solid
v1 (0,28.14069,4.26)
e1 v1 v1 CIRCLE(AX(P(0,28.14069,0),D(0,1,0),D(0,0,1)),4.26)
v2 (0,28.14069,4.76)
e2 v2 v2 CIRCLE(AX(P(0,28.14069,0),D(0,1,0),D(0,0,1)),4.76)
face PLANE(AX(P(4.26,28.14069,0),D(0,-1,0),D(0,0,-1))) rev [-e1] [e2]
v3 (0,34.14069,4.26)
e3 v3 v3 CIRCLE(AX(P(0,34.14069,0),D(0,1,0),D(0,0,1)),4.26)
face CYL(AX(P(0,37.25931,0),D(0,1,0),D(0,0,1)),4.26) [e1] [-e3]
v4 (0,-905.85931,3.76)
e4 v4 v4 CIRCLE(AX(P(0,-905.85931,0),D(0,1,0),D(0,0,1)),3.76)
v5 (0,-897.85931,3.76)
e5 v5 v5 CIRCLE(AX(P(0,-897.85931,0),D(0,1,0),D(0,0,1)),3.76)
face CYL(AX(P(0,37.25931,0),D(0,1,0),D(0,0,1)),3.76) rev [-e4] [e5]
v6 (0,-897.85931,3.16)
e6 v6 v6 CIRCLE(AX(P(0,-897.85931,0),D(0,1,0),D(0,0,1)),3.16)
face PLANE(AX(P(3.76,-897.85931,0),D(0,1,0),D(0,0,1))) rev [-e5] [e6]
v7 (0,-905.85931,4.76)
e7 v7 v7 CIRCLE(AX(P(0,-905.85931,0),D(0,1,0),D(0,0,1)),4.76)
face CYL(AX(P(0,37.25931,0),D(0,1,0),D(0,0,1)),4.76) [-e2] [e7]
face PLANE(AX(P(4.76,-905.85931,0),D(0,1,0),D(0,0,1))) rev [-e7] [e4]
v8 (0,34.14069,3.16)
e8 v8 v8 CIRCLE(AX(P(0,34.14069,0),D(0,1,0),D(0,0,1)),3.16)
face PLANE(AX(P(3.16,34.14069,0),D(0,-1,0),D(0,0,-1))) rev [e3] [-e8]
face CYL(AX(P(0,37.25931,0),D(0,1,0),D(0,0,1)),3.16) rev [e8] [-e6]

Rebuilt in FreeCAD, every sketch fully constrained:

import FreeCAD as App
import Part
import Sketcher

doc = App.newDocument("Part")
body = doc.addObject("PartDesign::Body", "Body")

sketch1 = doc.addObject("Sketcher::SketchObject", "Sketch")
body.addObject(sketch1)
sketch1.AttachmentSupport = (doc.XY_Plane, [""])
sketch1.MapMode = "FlatFace"
sketch1.addGeometry([
    Part.LineSegment(App.Vector(4.3, 34.1, 0), App.Vector(3.2, 34.1, 0)),
    Part.LineSegment(App.Vector(3.2, 34.1, 0), App.Vector(3.2, -897.9, 0)),
    Part.LineSegment(App.Vector(3.2, -897.9, 0), App.Vector(3.8, -897.9, 0)),
    Part.LineSegment(App.Vector(3.8, -897.9, 0), App.Vector(3.8, -905.9, 0)),
    Part.LineSegment(App.Vector(3.8, -905.9, 0), App.Vector(4.8, -905.9, 0)),
    Part.LineSegment(App.Vector(4.8, -905.9, 0), App.Vector(4.8, 28.1, 0)),
    Part.LineSegment(App.Vector(4.8, 28.1, 0), App.Vector(4.3, 28.1, 0)),
    Part.LineSegment(App.Vector(4.3, 28.1, 0), App.Vector(4.3, 34.1, 0)),
], False)
sketch1.addConstraint([
    Sketcher.Constraint("Coincident", 0, 2, 1, 1),
    Sketcher.Constraint("Coincident", 1, 2, 2, 1),
    Sketcher.Constraint("Coincident", 2, 2, 3, 1),
    Sketcher.Constraint("Coincident", 3, 2, 4, 1),
    Sketcher.Constraint("Coincident", 4, 2, 5, 1),
    Sketcher.Constraint("Coincident", 5, 2, 6, 1),
    Sketcher.Constraint("Coincident", 6, 2, 7, 1),
    Sketcher.Constraint("Coincident", 7, 2, 0, 1),
    Sketcher.Constraint("Horizontal", 0),
    Sketcher.Constraint("Vertical", 1),
    Sketcher.Constraint("Horizontal", 2),
    Sketcher.Constraint("Vertical", 3),
    Sketcher.Constraint("Horizontal", 4),
    Sketcher.Constraint("Vertical", 5),
    Sketcher.Constraint("Horizontal", 6),
    Sketcher.Constraint("Vertical", 7),
    Sketcher.Constraint("DistanceX", 4, 1, 4, 2, 1.0),
    Sketcher.Constraint("DistanceY", 1, 2, 1, 1, 932.0),
    Sketcher.Constraint("DistanceY", 3, 2, 3, 1, 8.0),
    Sketcher.Constraint("DistanceY", 5, 1, 5, 2, 934.0),
    Sketcher.Constraint("DistanceX", 0, 2, 0, 1, 1.1),
    Sketcher.Constraint("DistanceX", 2, 1, 2, 2, 0.6),
    Sketcher.Constraint("DistanceX", -1, 1, 0, 2, 3.16),
    Sketcher.Constraint("DistanceY", -1, 1, 0, 2, 34.14069),
])
revolution = doc.addObject("PartDesign::Revolution", "Revolution")
body.addObject(revolution)
revolution.Profile = sketch1
revolution.ReferenceAxis = (sketch1, ["V_Axis"])
revolution.Angle = 360

doc.recompute()
